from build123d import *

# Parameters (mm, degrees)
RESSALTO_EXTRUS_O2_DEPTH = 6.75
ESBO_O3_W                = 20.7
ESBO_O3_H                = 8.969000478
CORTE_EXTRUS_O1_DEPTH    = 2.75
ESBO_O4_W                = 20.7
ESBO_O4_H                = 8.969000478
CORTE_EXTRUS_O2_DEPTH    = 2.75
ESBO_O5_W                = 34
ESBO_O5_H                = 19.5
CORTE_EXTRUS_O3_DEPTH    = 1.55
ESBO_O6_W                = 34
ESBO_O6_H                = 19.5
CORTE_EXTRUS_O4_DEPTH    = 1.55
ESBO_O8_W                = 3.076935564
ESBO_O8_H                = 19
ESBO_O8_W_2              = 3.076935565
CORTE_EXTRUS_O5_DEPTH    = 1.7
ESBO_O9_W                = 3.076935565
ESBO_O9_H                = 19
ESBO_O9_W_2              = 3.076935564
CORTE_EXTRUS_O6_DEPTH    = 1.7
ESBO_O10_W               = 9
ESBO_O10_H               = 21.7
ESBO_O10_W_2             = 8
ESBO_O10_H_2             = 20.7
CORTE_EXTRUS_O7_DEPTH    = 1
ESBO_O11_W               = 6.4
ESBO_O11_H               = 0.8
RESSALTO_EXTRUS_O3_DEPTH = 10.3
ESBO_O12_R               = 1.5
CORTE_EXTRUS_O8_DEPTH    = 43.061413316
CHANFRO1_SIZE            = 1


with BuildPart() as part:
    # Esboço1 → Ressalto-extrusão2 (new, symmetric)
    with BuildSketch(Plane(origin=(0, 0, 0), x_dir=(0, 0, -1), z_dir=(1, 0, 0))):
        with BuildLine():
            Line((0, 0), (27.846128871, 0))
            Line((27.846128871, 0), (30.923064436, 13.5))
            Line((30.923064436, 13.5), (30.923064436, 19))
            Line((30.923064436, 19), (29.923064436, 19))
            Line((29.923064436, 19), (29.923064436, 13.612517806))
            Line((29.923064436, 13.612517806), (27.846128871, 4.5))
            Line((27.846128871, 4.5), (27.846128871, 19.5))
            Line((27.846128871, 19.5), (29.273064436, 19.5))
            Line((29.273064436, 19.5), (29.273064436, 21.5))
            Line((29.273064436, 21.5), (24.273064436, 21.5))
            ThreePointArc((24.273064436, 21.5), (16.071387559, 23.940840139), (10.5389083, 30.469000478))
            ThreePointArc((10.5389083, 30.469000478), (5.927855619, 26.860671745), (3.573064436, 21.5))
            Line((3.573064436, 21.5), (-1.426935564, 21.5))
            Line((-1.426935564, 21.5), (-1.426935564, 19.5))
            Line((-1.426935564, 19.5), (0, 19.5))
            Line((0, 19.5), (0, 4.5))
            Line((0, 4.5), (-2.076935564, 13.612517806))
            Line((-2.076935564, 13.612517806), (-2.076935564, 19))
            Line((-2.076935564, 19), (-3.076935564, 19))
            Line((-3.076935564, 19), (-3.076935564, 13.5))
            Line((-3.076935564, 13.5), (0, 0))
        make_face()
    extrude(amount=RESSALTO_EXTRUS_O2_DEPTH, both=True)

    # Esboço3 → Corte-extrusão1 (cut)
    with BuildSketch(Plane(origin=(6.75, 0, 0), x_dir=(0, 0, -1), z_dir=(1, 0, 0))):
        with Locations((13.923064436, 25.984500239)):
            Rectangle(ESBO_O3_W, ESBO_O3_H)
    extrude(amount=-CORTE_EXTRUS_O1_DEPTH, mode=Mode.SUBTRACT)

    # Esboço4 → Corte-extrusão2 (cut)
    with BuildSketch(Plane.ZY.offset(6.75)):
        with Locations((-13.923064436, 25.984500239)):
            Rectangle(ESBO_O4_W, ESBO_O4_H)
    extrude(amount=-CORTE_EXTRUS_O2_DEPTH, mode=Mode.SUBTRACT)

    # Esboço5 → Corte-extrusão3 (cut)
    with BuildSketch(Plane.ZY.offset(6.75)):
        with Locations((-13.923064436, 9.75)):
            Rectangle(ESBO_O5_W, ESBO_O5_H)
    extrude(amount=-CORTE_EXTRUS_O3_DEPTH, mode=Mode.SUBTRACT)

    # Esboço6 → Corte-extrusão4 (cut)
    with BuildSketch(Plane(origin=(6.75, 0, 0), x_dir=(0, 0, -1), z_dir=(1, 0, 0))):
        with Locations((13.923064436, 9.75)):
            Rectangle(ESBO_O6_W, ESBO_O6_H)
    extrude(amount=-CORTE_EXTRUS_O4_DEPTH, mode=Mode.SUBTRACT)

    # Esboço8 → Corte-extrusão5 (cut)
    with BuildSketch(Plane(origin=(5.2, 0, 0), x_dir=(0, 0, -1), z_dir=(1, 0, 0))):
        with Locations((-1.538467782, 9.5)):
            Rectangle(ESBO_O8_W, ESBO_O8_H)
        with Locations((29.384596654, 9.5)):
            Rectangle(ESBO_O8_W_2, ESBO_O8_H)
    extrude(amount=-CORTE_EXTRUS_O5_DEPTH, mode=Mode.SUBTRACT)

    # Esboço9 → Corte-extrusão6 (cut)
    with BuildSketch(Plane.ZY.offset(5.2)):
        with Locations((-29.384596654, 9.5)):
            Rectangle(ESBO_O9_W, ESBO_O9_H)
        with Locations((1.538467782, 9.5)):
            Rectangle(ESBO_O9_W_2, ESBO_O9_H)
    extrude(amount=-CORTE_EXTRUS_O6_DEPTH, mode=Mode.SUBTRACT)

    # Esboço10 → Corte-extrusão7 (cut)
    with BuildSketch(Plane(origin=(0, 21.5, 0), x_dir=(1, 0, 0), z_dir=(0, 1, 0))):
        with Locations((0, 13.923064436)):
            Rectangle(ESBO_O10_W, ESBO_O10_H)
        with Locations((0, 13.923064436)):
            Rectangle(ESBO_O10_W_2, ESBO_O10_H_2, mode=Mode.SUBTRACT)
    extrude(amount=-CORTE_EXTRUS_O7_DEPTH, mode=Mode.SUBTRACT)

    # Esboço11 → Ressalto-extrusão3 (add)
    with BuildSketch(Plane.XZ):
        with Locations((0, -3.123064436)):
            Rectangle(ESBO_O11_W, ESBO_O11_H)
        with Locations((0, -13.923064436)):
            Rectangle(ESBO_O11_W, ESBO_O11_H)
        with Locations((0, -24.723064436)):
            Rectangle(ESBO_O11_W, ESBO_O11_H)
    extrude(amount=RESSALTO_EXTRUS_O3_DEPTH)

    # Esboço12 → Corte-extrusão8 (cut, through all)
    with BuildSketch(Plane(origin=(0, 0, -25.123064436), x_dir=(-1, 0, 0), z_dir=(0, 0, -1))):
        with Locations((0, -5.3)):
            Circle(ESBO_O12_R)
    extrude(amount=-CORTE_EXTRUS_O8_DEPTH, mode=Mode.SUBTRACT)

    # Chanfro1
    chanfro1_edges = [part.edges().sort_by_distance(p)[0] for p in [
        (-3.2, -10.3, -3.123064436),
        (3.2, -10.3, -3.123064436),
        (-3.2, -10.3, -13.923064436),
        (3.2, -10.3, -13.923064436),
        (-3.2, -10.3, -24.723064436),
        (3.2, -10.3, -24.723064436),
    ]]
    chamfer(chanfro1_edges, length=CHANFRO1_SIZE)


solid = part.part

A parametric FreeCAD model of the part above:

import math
import FreeCAD as App
import Part
import Sketcher

V = App.Vector
Q = App.Units.Quantity


def edges_at(feature, points):
    """Names of the edges that pass closest to the given points."""
    edges = feature.Shape.Edges
    near = lambda p: min(range(len(edges)), key=lambda i: edges[i].distToShape(Part.Vertex(*p))[0])
    return sorted({f"Edge{near(p) + 1}" for p in points})

doc = App.newDocument("Part")
body = doc.addObject("PartDesign::Body", "Body")

sketch1 = body.newObject("Sketcher::SketchObject", "Sketch")
sketch1.AttachmentSupport = (doc.getObject("YZ_Plane"), [""])
sketch1.MapMode = "FlatFace"
sketch1.addGeometry([
    Part.LineSegment(V(0, 0, 0), V(0, -27.8, 0)),
    Part.LineSegment(V(0, -27.8, 0), V(13.5, -30.9, 0)),
    Part.LineSegment(V(13.5, -30.9, 0), V(19, -30.9, 0)),
    Part.LineSegment(V(19, -30.9, 0), V(19, -29.9, 0)),
    Part.LineSegment(V(19, -29.9, 0), V(13.6, -29.9, 0)),
    Part.LineSegment(V(13.6, -29.9, 0), V(4.5, -27.8, 0)),
    Part.LineSegment(V(4.5, -27.8, 0), V(19.5, -27.8, 0)),
    Part.LineSegment(V(19.5, -27.8, 0), V(19.5, -29.3, 0)),
    Part.LineSegment(V(19.5, -29.3, 0), V(21.5, -29.3, 0)),
    Part.LineSegment(V(21.5, -29.3, 0), V(21.5, -24.3, 0)),
    Part.ArcOfCircle(Part.Circle(V(36.5, -24.3, 0), V(0, 0, 1), 15), math.radians(114), math.radians(180)),
    Part.ArcOfCircle(Part.Circle(V(19.5, -15.4, 0), V(0, 0, 1), 12), math.radians(24), math.radians(80)),
    Part.LineSegment(V(21.5, -3.6, 0), V(21.5, 1.4, 0)),
    Part.LineSegment(V(21.5, 1.4, 0), V(19.5, 1.4, 0)),
    Part.LineSegment(V(19.5, 1.4, 0), V(19.5, 0, 0)),
    Part.LineSegment(V(19.5, 0, 0), V(4.5, 0, 0)),
    Part.LineSegment(V(4.5, 0, 0), V(13.6, 2.1, 0)),
    Part.LineSegment(V(13.6, 2.1, 0), V(19, 2.1, 0)),
    Part.LineSegment(V(19, 2.1, 0), V(19, 3.1, 0)),
    Part.LineSegment(V(19, 3.1, 0), V(13.5, 3.1, 0)),
    Part.LineSegment(V(13.5, 3.1, 0), V(0, 0, 0)),
], False)
sketch1.addConstraint([
    Sketcher.Constraint("Coincident", 0, 2, 1, 1),
    Sketcher.Constraint("Coincident", 1, 2, 2, 1),
    Sketcher.Constraint("Coincident", 2, 2, 3, 1),
    Sketcher.Constraint("Coincident", 3, 2, 4, 1),
    Sketcher.Constraint("Coincident", 4, 2, 5, 1),
    Sketcher.Constraint("Coincident", 5, 2, 6, 1),
    Sketcher.Constraint("Coincident", 6, 2, 7, 1),
    Sketcher.Constraint("Coincident", 7, 2, 8, 1),
    Sketcher.Constraint("Coincident", 8, 2, 9, 1),
    Sketcher.Constraint("Tangent", 9, 2, 10, 2),
    Sketcher.Constraint("Coincident", 10, 1, 11, 1),
    Sketcher.Constraint("Coincident", 11, 2, 12, 1),
    Sketcher.Constraint("Coincident", 12, 2, 13, 1),
    Sketcher.Constraint("Coincident", 13, 2, 14, 1),
    Sketcher.Constraint("Coincident", 14, 2, 15, 1),
    Sketcher.Constraint("Coincident", 15, 2, 16, 1),
    Sketcher.Constraint("Coincident", 16, 2, 17, 1),
    Sketcher.Constraint("Coincident", 17, 2, 18, 1),
    Sketcher.Constraint("Coincident", 18, 2, 19, 1),
    Sketcher.Constraint("Coincident", 19, 2, 20, 1),
    Sketcher.Constraint("Coincident", 20, 2, 0, 1),
    Sketcher.Constraint("Vertical", 0),
    Sketcher.Constraint("Horizontal", 2),
    Sketcher.Constraint("Vertical", 3),
    Sketcher.Constraint("Horizontal", 4),
    Sketcher.Constraint("Horizontal", 6),
    Sketcher.Constraint("Vertical", 7),
    Sketcher.Constraint("Horizontal", 8),
    Sketcher.Constraint("Vertical", 9),
    Sketcher.Constraint("Vertical", 12),
    Sketcher.Constraint("Horizontal", 13),
    Sketcher.Constraint("Vertical", 14),
    Sketcher.Constraint("Horizontal", 15),
    Sketcher.Constraint("Horizontal", 17),
    Sketcher.Constraint("Vertical", 18),
    Sketcher.Constraint("Horizontal", 19),
    Sketcher.Constraint("Coincident", 20, 2, -1, 1),
    Sketcher.Constraint("PointOnObject", 14, 2, -1),
    Sketcher.Constraint("Parallel", 1, 5),
    Sketcher.Constraint("Parallel", 16, 20),
    Sketcher.Constraint("Horizontal", 0, 2, 5, 2),
    Sketcher.Constraint("Vertical", 11, 3, 6, 2),
    Sketcher.Constraint("Vertical", 9, 2, 11, 2),
    Sketcher.Constraint("Vertical", 7, 2, 13, 2),
    Sketcher.Constraint("Vertical", 5, 2, 15, 2),
    Sketcher.Constraint("Vertical", 4, 2, 16, 2),
    Sketcher.Constraint("Vertical", 3, 2, 17, 2),
    Sketcher.Constraint("Vertical", 1, 2, 19, 2),
    Sketcher.Constraint("Equal", 9, 12),
    Sketcher.Constraint("Equal", 7, 14),
    Sketcher.Constraint("Equal", 3, 18),
    Sketcher.Constraint("Radius", 10, Q("15 mm")),
    Sketcher.Constraint("Radius", 11, Q("12 mm")),
    Sketcher.Constraint("DistanceX", 6, 1, 6, 2, Q("15 mm")),
    Sketcher.Constraint("DistanceX", 8, 1, 8, 2, Q("2 mm")),
    Sketcher.Constraint("DistanceY", 3, 1, 3, 2, Q("1 mm")),
    Sketcher.Constraint("DistanceY", 9, 1, 9, 2, Q("5 mm")),
    Sketcher.Constraint("DistanceX", 2, 1, 2, 2, Q("5.5 mm")),
    Sketcher.Constraint("DistanceX", -1, 1, 2, 2, Q("19 mm")),
    Sketcher.Constraint("DistanceX", 1, 2, 11, 3, Q("6 mm")),
    Sketcher.Constraint("DistanceY", 9, 2, 11, 2, Q("20.7 mm")),
    Sketcher.Constraint("DistanceY", 1, 2, 10, 3, Q("6.65 mm")),
    Sketcher.Constraint("DistanceY", 0, 2, 0, 1, Q("27.846129 mm")),
])
pad1 = body.newObject("PartDesign::Pad", "Pad")
pad1.Profile = sketch1
pad1.Length = 13.5
pad1.Midplane = True

sketch2 = body.newObject("Sketcher::SketchObject", "Sketch001")
sketch2.AttachmentSupport = (doc.getObject("YZ_Plane"), [""])
sketch2.MapMode = "FlatFace"
sketch2.AttachmentOffset = App.Placement(V(0, 0, 6.75), App.Rotation())
sketch2.addGeometry([
    Part.LineSegment(V(30, -4, 0), V(22, -4, 0)),
    Part.LineSegment(V(22, -4, 0), V(22, -24, 0)),
    Part.LineSegment(V(22, -24, 0), V(30, -24, 0)),
    Part.LineSegment(V(30, -24, 0), V(30, -4, 0)),
], False)
sketch2.addConstraint([
    Sketcher.Constraint("Coincident", 0, 2, 1, 1),
    Sketcher.Constraint("Coincident", 1, 2, 2, 1),
    Sketcher.Constraint("Coincident", 2, 2, 3, 1),
    Sketcher.Constraint("Coincident", 3, 2, 0, 1),
    Sketcher.Constraint("Horizontal", 0),
    Sketcher.Constraint("Vertical", 1),
    Sketcher.Constraint("Horizontal", 2),
    Sketcher.Constraint("Vertical", 3),
    Sketcher.Constraint("DistanceY", 1, 2, 1, 1, Q("20.7 mm")),
    Sketcher.Constraint("DistanceX", -1, 1, 0, 2, Q("21.5 mm")),
    Sketcher.Constraint("DistanceX", 0, 2, 0, 1, Q("8.969 mm")),
    Sketcher.Constraint("DistanceY", 0, 2, -1, 1, Q("3.573064 mm")),
])
pocket1 = body.newObject("PartDesign::Pocket", "Pocket")
pocket1.Profile = sketch2
pocket1.Length = 2.75

sketch3 = body.newObject("Sketcher::SketchObject", "Sketch002")
sketch3.AttachmentSupport = (doc.getObject("YZ_Plane"), [""])
sketch3.MapMode = "FlatFace"
sketch3.AttachmentOffset = App.Placement(V(0, 0, -6.75), App.Rotation())
sketch3.addGeometry([
    Part.LineSegment(V(30, -24, 0), V(22, -24, 0)),
    Part.LineSegment(V(22, -24, 0), V(22, -4, 0)),
    Part.LineSegment(V(22, -4, 0), V(30, -4, 0)),
    Part.LineSegment(V(30, -4, 0), V(30, -24, 0)),
], False)
sketch3.addConstraint([
    Sketcher.Constraint("Coincident", 0, 2, 1, 1),
    Sketcher.Constraint("Coincident", 1, 2, 2, 1),
    Sketcher.Constraint("Coincident", 2, 2, 3, 1),
    Sketcher.Constraint("Coincident", 3, 2, 0, 1),
    Sketcher.Constraint("Horizontal", 0),
    Sketcher.Constraint("Vertical", 1),
    Sketcher.Constraint("Horizontal", 2),
    Sketcher.Constraint("Vertical", 3),
    Sketcher.Constraint("DistanceY", 1, 1, 1, 2, Q("20.7 mm")),
    Sketcher.Constraint("DistanceX", -1, 1, 0, 2, Q("21.5 mm")),
    Sketcher.Constraint("DistanceX", 0, 2, 0, 1, Q("8.969 mm")),
    Sketcher.Constraint("DistanceY", 0, 2, -1, 1, Q("24.273064 mm")),
])
pocket2 = body.newObject("PartDesign::Pocket", "Pocket001")
pocket2.Profile = sketch3
pocket2.Length = 2.75
pocket2.Reversed = True

sketch4 = body.newObject("Sketcher::SketchObject", "Sketch003")
sketch4.AttachmentSupport = (doc.getObject("YZ_Plane"), [""])
sketch4.MapMode = "FlatFace"
sketch4.AttachmentOffset = App.Placement(V(0, 0, -6.75), App.Rotation())
sketch4.addGeometry([
    Part.LineSegment(V(20, -31, 0), V(0, -31, 0)),
    Part.LineSegment(V(0, -31, 0), V(0, 3, 0)),
    Part.LineSegment(V(0, 3, 0), V(20, 3, 0)),
    Part.LineSegment(V(20, 3, 0), V(20, -31, 0)),
], False)
sketch4.addConstraint([
    Sketcher.Constraint("Coincident", 0, 2, 1, 1),
    Sketcher.Constraint("Coincident", 1, 2, 2, 1),
    Sketcher.Constraint("Coincident", 2, 2, 3, 1),
    Sketcher.Constraint("Coincident", 3, 2, 0, 1),
    Sketcher.Constraint("Horizontal", 0),
    Sketcher.Constraint("Vertical", 1),
    Sketcher.Constraint("Horizontal", 2),
    Sketcher.Constraint("Vertical", 3),
    Sketcher.Constraint("PointOnObject", 0, 2, -2),
    Sketcher.Constraint("DistanceY", 1, 1, 1, 2, Q("34 mm")),
    Sketcher.Constraint("DistanceX", 0, 2, 0, 1, Q("19.5 mm")),
    Sketcher.Constraint("DistanceY", 0, 2, -1, 1, Q("30.923064 mm")),
])
pocket3 = body.newObject("PartDesign::Pocket", "Pocket002")
pocket3.Profile = sketch4
pocket3.Length = 1.55
pocket3.Reversed = True

sketch5 = body.newObject("Sketcher::SketchObject", "Sketch004")
sketch5.AttachmentSupport = (doc.getObject("YZ_Plane"), [""])
sketch5.MapMode = "FlatFace"
sketch5.AttachmentOffset = App.Placement(V(0, 0, 6.75), App.Rotation())
sketch5.addGeometry([
    Part.LineSegment(V(20, 3, 0), V(0, 3, 0)),
    Part.LineSegment(V(0, 3, 0), V(0, -31, 0)),
    Part.LineSegment(V(0, -31, 0), V(20, -31, 0)),
    Part.LineSegment(V(20, -31, 0), V(20, 3, 0)),
], False)
sketch5.addConstraint([
    Sketcher.Constraint("Coincident", 0, 2, 1, 1),
    Sketcher.Constraint("Coincident", 1, 2, 2, 1),
    Sketcher.Constraint("Coincident", 2, 2, 3, 1),
    Sketcher.Constraint("Coincident", 3, 2, 0, 1),
    Sketcher.Constraint("Horizontal", 0),
    Sketcher.Constraint("Vertical", 1),
    Sketcher.Constraint("Horizontal", 2),
    Sketcher.Constraint("Vertical", 3),
    Sketcher.Constraint("PointOnObject", 0, 2, -2),
    Sketcher.Constraint("DistanceY", 1, 2, 1, 1, Q("34 mm")),
    Sketcher.Constraint("DistanceX", 0, 2, 0, 1, Q("19.5 mm")),
    Sketcher.Constraint("DistanceY", -1, 1, 0, 2, Q("3.076936 mm")),
])
pocket4 = body.newObject("PartDesign::Pocket", "Pocket003")
pocket4.Profile = sketch5
pocket4.Length = 1.55

sketch6 = body.newObject("Sketcher::SketchObject", "Sketch005")
sketch6.AttachmentSupport = (doc.getObject("YZ_Plane"), [""])
sketch6.MapMode = "FlatFace"
sketch6.AttachmentOffset = App.Placement(V(0, 0, 5.2), App.Rotation())
sketch6.addGeometry([
    Part.LineSegment(V(19, 3.1, 0), V(0, 3.1, 0)),
    Part.LineSegment(V(0, 3.1, 0), V(0, 0, 0)),
    Part.LineSegment(V(0, 0, 0), V(19, 0, 0)),
    Part.LineSegment(V(19, 0, 0), V(19, 3.1, 0)),
    Part.LineSegment(V(19, -27.8, 0), V(0, -27.8, 0)),
    Part.LineSegment(V(0, -27.8, 0), V(0, -30.9, 0)),
    Part.LineSegment(V(0, -30.9, 0), V(19, -30.9, 0)),
    Part.LineSegment(V(19, -30.9, 0), V(19, -27.8, 0)),
], False)
sketch6.addConstraint([
    Sketcher.Constraint("Coincident", 0, 2, 1, 1),
    Sketcher.Constraint("Coincident", 1, 2, 2, 1),
    Sketcher.Constraint("Coincident", 2, 2, 3, 1),
    Sketcher.Constraint("Coincident", 3, 2, 0, 1),
    Sketcher.Constraint("Coincident", 4, 2, 5, 1),
    Sketcher.Constraint("Coincident", 5, 2, 6, 1),
    Sketcher.Constraint("Coincident", 6, 2, 7, 1),
    Sketcher.Constraint("Coincident", 7, 2, 4, 1),
    Sketcher.Constraint("Horizontal", 0),
    Sketcher.Constraint("Vertical", 1),
    Sketcher.Constraint("Horizontal", 2),
    Sketcher.Constraint("Vertical", 3),
    Sketcher.Constraint("Horizontal", 4),
    Sketcher.Constraint("Vertical", 5),
    Sketcher.Constraint("Horizontal", 6),
    Sketcher.Constraint("Vertical", 7),
    Sketcher.Constraint("Coincident", 1, 2, -1, 1),
    Sketcher.Constraint("PointOnObject", 4, 2, -2),
    Sketcher.Constraint("Vertical", 3, 2, 6, 2),
    Sketcher.Constraint("Equal", 3, 5),
    Sketcher.Constraint("DistanceX", 0, 2, 0, 1, Q("19 mm")),
    Sketcher.Constraint("DistanceY", 5, 2, 0, 2, Q("34 mm")),
    Sketcher.Constraint("DistanceY", 1, 2, 1, 1, Q("3.076936 mm")),
])
pocket5 = body.newObject("PartDesign::Pocket", "Pocket004")
pocket5.Profile = sketch6
pocket5.Length = 1.7

sketch7 = body.newObject("Sketcher::SketchObject", "Sketch006")
sketch7.AttachmentSupport = (doc.getObject("YZ_Plane"), [""])
sketch7.MapMode = "FlatFace"
sketch7.AttachmentOffset = App.Placement(V(0, 0, -5.2), App.Rotation())
sketch7.addGeometry([
    Part.LineSegment(V(19, -30.9, 0), V(0, -30.9, 0)),
    Part.LineSegment(V(0, -30.9, 0), V(0, -27.8, 0)),
    Part.LineSegment(V(0, -27.8, 0), V(19, -27.8, 0)),
    Part.LineSegment(V(19, -27.8, 0), V(19, -30.9, 0)),
    Part.LineSegment(V(19, 0, 0), V(0, 0, 0)),
    Part.LineSegment(V(0, 0, 0), V(0, 3.1, 0)),
    Part.LineSegment(V(0, 3.1, 0), V(19, 3.1, 0)),
    Part.LineSegment(V(19, 3.1, 0), V(19, 0, 0)),
], False)
sketch7.addConstraint([
    Sketcher.Constraint("Coincident", 0, 2, 1, 1),
    Sketcher.Constraint("Coincident", 1, 2, 2, 1),
    Sketcher.Constraint("Coincident", 2, 2, 3, 1),
    Sketcher.Constraint("Coincident", 3, 2, 0, 1),
    Sketcher.Constraint("Coincident", 4, 2, 5, 1),
    Sketcher.Constraint("Coincident", 5, 2, 6, 1),
    Sketcher.Constraint("Coincident", 6, 2, 7, 1),
    Sketcher.Constraint("Coincident", 7, 2, 4, 1),
    Sketcher.Constraint("Horizontal", 0),
    Sketcher.Constraint("Vertical", 1),
    Sketcher.Constraint("Horizontal", 2),
    Sketcher.Constraint("Vertical", 3),
    Sketcher.Constraint("Horizontal", 4),
    Sketcher.Constraint("Vertical", 5),
    Sketcher.Constraint("Horizontal", 6),
    Sketcher.Constraint("Vertical", 7),
    Sketcher.Constraint("Coincident", 4, 2, -1, 1),
    Sketcher.Constraint("PointOnObject", 0, 2, -2),
    Sketcher.Constraint("Vertical", 3, 2, 6, 2),
    Sketcher.Constraint("Equal", 3, 5),
    Sketcher.Constraint("DistanceX", 0, 2, 0, 1, Q("19 mm")),
    Sketcher.Constraint("DistanceY", 0, 2, 5, 2, Q("34 mm")),
    Sketcher.Constraint("DistanceY", 1, 1, 1, 2, Q("3.076936 mm")),
])
pocket6 = body.newObject("PartDesign::Pocket", "Pocket005")
pocket6.Profile = sketch7
pocket6.Length = 1.7
pocket6.Reversed = True

sketch8 = body.newObject("Sketcher::SketchObject", "Sketch007")
sketch8.AttachmentSupport = (doc.getObject("XZ_Plane"), [""])
sketch8.MapMode = "FlatFace"
sketch8.AttachmentOffset = App.Placement(V(0, 0, -21.5), App.Rotation())
sketch8.addGeometry([
    Part.LineSegment(V(-4, -25, 0), V(-4, -3, 0)),
    Part.LineSegment(V(-4, -3, 0), V(4, -3, 0)),
    Part.LineSegment(V(4, -3, 0), V(4, -25, 0)),
    Part.LineSegment(V(4, -25, 0), V(-4, -25, 0)),
    Part.LineSegment(V(4, -4, 0), V(-4, -4, 0)),
    Part.LineSegment(V(-4, -4, 0), V(-4, -24, 0)),
    Part.LineSegment(V(-4, -24, 0), V(4, -24, 0)),
    Part.LineSegment(V(4, -24, 0), V(4, -4, 0)),
], False)
sketch8.addConstraint([
    Sketcher.Constraint("Coincident", 0, 2, 1, 1),
    Sketcher.Constraint("Coincident", 1, 2, 2, 1),
    Sketcher.Constraint("Coincident", 2, 2, 3, 1),
    Sketcher.Constraint("Coincident", 3, 2, 0, 1),
    Sketcher.Constraint("Coincident", 4, 2, 5, 1),
    Sketcher.Constraint("Coincident", 5, 2, 6, 1),
    Sketcher.Constraint("Coincident", 6, 2, 7, 1),
    Sketcher.Constraint("Coincident", 7, 2, 4, 1),
    Sketcher.Constraint("Vertical", 0),
    Sketcher.Constraint("Horizontal", 1),
    Sketcher.Constraint("Vertical", 2),
    Sketcher.Constraint("Horizontal", 3),
    Sketcher.Constraint("Horizontal", 4),
    Sketcher.Constraint("Vertical", 5),
    Sketcher.Constraint("Horizontal", 6),
    Sketcher.Constraint("Vertical", 7),
    Sketcher.Constraint("DistanceX", 1, 1, 1, 2, Q("9 mm")),
    Sketcher.Constraint("DistanceX", 4, 2, 4, 1, Q("8 mm")),
    Sketcher.Constraint("DistanceY", 0, 1, 0, 2, Q("21.7 mm")),
    Sketcher.Constraint("DistanceY", 5, 2, 5, 1, Q("20.7 mm")),
    Sketcher.Constraint("DistanceX", 4, 2, -1, 1, Q("4 mm")),
    Sketcher.Constraint("DistanceX", 0, 2, -1, 1, Q("4.5 mm")),
    Sketcher.Constraint("DistanceY", 4, 2, 0, 2, Q("0.5 mm")),
    Sketcher.Constraint("DistanceY", 0, 2, -1, 1, Q("3.073064 mm")),
])
pocket7 = body.newObject("PartDesign::Pocket", "Pocket006")
pocket7.Profile = sketch8
pocket7.Length = 1
pocket7.Reversed = True

sketch9 = body.newObject("Sketcher::SketchObject", "Sketch008")
sketch9.AttachmentSupport = (doc.getObject("XZ_Plane"), [""])
sketch9.MapMode = "FlatFace"
sketch9.addGeometry([
    Part.LineSegment(V(-3.2, -2.7, 0), V(-3.2, -3.5, 0)),
    Part.LineSegment(V(-3.2, -3.5, 0), V(3.2, -3.5, 0)),
    Part.LineSegment(V(3.2, -3.5, 0), V(3.2, -2.7, 0)),
    Part.LineSegment(V(3.2, -2.7, 0), V(-3.2, -2.7, 0)),
    Part.LineSegment(V(-3.2, -13.5, 0), V(-3.2, -14.3, 0)),
    Part.LineSegment(V(-3.2, -14.3, 0), V(3.2, -14.3, 0)),
    Part.LineSegment(V(3.2, -14.3, 0), V(3.2, -13.5, 0)),
    Part.LineSegment(V(3.2, -13.5, 0), V(-3.2, -13.5, 0)),
    Part.LineSegment(V(-3.2, -24.3, 0), V(-3.2, -25.1, 0)),
    Part.LineSegment(V(-3.2, -25.1, 0), V(3.2, -25.1, 0)),
    Part.LineSegment(V(3.2, -25.1, 0), V(3.2, -24.3, 0)),
    Part.LineSegment(V(3.2, -24.3, 0), V(-3.2, -24.3, 0)),
], False)
sketch9.addConstraint([
    Sketcher.Constraint("Coincident", 0, 2, 1, 1),
    Sketcher.Constraint("Coincident", 1, 2, 2, 1),
    Sketcher.Constraint("Coincident", 2, 2, 3, 1),
    Sketcher.Constraint("Coincident", 3, 2, 0, 1),
    Sketcher.Constraint("Coincident", 4, 2, 5, 1),
    Sketcher.Constraint("Coincident", 5, 2, 6, 1),
    Sketcher.Constraint("Coincident", 6, 2, 7, 1),
    Sketcher.Constraint("Coincident", 7, 2, 4, 1),
    Sketcher.Constraint("Coincident", 8, 2, 9, 1),
    Sketcher.Constraint("Coincident", 9, 2, 10, 1),
    Sketcher.Constraint("Coincident", 10, 2, 11, 1),
    Sketcher.Constraint("Coincident", 11, 2, 8, 1),
    Sketcher.Constraint("Vertical", 0),
    Sketcher.Constraint("Horizontal", 1),
    Sketcher.Constraint("Vertical", 2),
    Sketcher.Constraint("Horizontal", 3),
    Sketcher.Constraint("Vertical", 4),
    Sketcher.Constraint("Horizontal", 5),
    Sketcher.Constraint("Vertical", 6),
    Sketcher.Constraint("Horizontal", 7),
    Sketcher.Constraint("Vertical", 8),
    Sketcher.Constraint("Horizontal", 9),
    Sketcher.Constraint("Vertical", 10),
    Sketcher.Constraint("Horizontal", 11),
    Sketcher.Constraint("Vertical", 3, 2, 4, 2),
    Sketcher.Constraint("Vertical", 2, 2, 5, 2),
    Sketcher.Constraint("Vertical", 7, 2, 8, 2),
    Sketcher.Constraint("Vertical", 6, 2, 9, 2),
    Sketcher.Constraint("Equal", 2, 4),
    Sketcher.Constraint("Equal", 6, 8),
    Sketcher.Constraint("DistanceX", 1, 1, 1, 2, Q("6.4 mm")),
    Sketcher.Constraint("DistanceY", 0, 2, 0, 1, Q("0.8 mm")),
    Sketcher.Constraint("DistanceY", 6, 2, 1, 2, Q("10 mm")),
    Sketcher.Constraint("DistanceY", 10, 2, 5, 2, Q("10 mm")),
    Sketcher.Constraint("DistanceX", 0, 2, -1, 1, Q("3.2 mm")),
    Sketcher.Constraint("DistanceY", 0, 2, -1, 1, Q("3.523064 mm")),
])
pad2 = body.newObject("PartDesign::Pad", "Pad001")
pad2.Profile = sketch9
pad2.Length = 10.3

sketch10 = body.newObject("Sketcher::SketchObject", "Sketch009")
sketch10.AttachmentSupport = (doc.getObject("XY_Plane"), [""])
sketch10.MapMode = "FlatFace"
sketch10.AttachmentOffset = App.Placement(V(0, 0, -25.123064), App.Rotation())
sketch10.addGeometry(Part.Circle(V(0, -5.3, 0), V(0, 0, 1), 1.5), False)
sketch10.addConstraint([
    Sketcher.Constraint("PointOnObject", 0, 3, -2),
    Sketcher.Constraint("Diameter", 0, Q("3 mm")),
    Sketcher.Constraint("DistanceY", 0, 3, -1, 1, Q("5.3 mm")),
])
pocket8 = body.newObject("PartDesign::Pocket", "Pocket007")
pocket8.Profile = sketch10
pocket8.Type = "ThroughAll"
pocket8.Reversed = True
doc.recompute()

chamfer = body.newObject("PartDesign::Chamfer", "Chamfer")
chamfer.Base = (pocket8, edges_at(pocket8, [
    (-3.2, -10.3, -3.123),
    (3.2, -10.3, -3.123),
    (-3.2, -10.3, -13.923),
    (3.2, -10.3, -13.923),
    (-3.2, -10.3, -24.723),
    (3.2, -10.3, -24.723),
]))
chamfer.Size = 1

doc.recompute()
